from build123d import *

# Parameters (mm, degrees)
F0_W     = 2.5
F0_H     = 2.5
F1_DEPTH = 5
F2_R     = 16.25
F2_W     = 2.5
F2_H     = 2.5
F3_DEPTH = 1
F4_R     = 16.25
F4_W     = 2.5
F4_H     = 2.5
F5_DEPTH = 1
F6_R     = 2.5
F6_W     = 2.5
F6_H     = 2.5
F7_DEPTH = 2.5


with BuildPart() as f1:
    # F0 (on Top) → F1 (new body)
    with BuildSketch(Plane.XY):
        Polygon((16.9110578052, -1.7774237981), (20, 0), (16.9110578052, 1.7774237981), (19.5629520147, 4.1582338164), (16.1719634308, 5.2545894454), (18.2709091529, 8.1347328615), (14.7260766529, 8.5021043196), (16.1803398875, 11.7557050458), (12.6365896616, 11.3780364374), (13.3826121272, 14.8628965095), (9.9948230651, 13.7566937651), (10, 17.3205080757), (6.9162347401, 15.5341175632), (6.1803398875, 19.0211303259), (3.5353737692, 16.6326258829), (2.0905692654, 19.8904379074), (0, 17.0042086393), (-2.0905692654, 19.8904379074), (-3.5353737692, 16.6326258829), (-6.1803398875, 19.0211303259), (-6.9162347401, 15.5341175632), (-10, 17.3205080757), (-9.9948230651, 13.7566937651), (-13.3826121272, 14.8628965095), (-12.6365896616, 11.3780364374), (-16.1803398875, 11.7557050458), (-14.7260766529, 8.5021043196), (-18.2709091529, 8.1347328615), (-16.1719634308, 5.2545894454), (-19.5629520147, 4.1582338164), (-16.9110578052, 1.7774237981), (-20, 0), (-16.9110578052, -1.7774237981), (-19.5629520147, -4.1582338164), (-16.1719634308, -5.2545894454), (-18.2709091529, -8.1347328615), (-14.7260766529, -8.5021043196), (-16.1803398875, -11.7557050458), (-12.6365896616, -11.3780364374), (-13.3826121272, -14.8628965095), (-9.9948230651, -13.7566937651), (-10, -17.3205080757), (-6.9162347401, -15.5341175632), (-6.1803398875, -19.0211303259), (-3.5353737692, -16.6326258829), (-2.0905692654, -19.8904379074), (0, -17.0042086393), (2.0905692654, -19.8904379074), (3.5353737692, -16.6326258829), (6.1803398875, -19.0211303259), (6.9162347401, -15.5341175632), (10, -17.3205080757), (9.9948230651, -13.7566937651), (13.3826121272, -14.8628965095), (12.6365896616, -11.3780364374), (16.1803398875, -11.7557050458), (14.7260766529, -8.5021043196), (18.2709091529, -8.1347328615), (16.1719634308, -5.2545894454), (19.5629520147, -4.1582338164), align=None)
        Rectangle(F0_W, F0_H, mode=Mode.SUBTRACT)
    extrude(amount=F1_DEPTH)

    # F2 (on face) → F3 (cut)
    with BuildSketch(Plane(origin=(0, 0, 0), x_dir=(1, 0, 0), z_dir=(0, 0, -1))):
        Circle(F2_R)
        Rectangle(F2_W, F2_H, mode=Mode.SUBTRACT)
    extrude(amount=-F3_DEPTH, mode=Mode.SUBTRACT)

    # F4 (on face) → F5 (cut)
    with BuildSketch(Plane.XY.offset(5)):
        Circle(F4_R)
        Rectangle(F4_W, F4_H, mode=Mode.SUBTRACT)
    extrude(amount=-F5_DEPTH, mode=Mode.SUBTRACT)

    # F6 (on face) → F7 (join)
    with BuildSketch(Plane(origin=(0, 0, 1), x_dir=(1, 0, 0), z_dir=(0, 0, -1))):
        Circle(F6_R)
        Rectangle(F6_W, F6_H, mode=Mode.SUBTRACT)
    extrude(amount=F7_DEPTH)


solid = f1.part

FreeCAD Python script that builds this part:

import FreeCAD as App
import Part
import Sketcher

V = App.Vector

doc = App.newDocument("Part")
params = doc.addObject("Spreadsheet::Sheet", "Params")
for row, (alias, value) in enumerate([
    ("sketch1_width", "2.5 mm"),
    ("pad1_length", "5 mm"),
    ("sketch2_diameter", "32.5 mm"),
    ("sketch2_width", "2.5 mm"),
    ("pocket1_length", "1 mm"),
    ("sketch3_diameter", "32.5 mm"),
    ("sketch3_width", "2.5 mm"),
    ("pocket2_length", "1 mm"),
    ("sketch4_diameter", "5 mm"),
    ("sketch4_width", "2.5 mm"),
    ("pad2_length", "2.5 mm"),
], start=1):
    params.set(f"A{row}", alias)
    params.set(f"B{row}", "=" + value)
    params.setAlias(f"B{row}", alias)

body = doc.addObject("PartDesign::Body", "Body")

sketch1 = body.newObject("Sketcher::SketchObject", "Sketch")
sketch1.AttachmentSupport = (doc.getObject("XY_Plane"), [""])
sketch1.MapMode = "FlatFace"
sketch1.addGeometry([
    Part.LineSegment(V(16.911058, -1.777424, 0), V(20, 0, 0)),
    Part.LineSegment(V(20, 0, 0), V(16.911058, 1.777424, 0)),
    Part.LineSegment(V(16.911058, 1.777424, 0), V(19.562952, 4.158234, 0)),
    Part.LineSegment(V(19.562952, 4.158234, 0), V(16.171963, 5.254589, 0)),
    Part.LineSegment(V(16.171963, 5.254589, 0), V(18.270909, 8.134733, 0)),
    Part.LineSegment(V(18.270909, 8.134733, 0), V(14.726077, 8.502104, 0)),
    Part.LineSegment(V(14.726077, 8.502104, 0), V(16.18034, 11.755705, 0)),
    Part.LineSegment(V(16.18034, 11.755705, 0), V(12.63659, 11.378036, 0)),
    Part.LineSegment(V(12.63659, 11.378036, 0), V(13.382612, 14.862897, 0)),
    Part.LineSegment(V(13.382612, 14.862897, 0), V(9.994823, 13.756694, 0)),
    Part.LineSegment(V(9.994823, 13.756694, 0), V(10, 17.320508, 0)),
    Part.LineSegment(V(10, 17.320508, 0), V(6.916235, 15.534118, 0)),
    Part.LineSegment(V(6.916235, 15.534118, 0), V(6.18034, 19.02113, 0)),
    Part.LineSegment(V(6.18034, 19.02113, 0), V(3.535374, 16.632626, 0)),
    Part.LineSegment(V(3.535374, 16.632626, 0), V(2.090569, 19.890438, 0)),
    Part.LineSegment(V(2.090569, 19.890438, 0), V(0, 17.004209, 0)),
    Part.LineSegment(V(0, 17.004209, 0), V(-2.090569, 19.890438, 0)),
    Part.LineSegment(V(-2.090569, 19.890438, 0), V(-3.535374, 16.632626, 0)),
    Part.LineSegment(V(-3.535374, 16.632626, 0), V(-6.18034, 19.02113, 0)),
    Part.LineSegment(V(-6.18034, 19.02113, 0), V(-6.916235, 15.534118, 0)),
    Part.LineSegment(V(-6.916235, 15.534118, 0), V(-10, 17.320508, 0)),
    Part.LineSegment(V(-10, 17.320508, 0), V(-9.994823, 13.756694, 0)),
    Part.LineSegment(V(-9.994823, 13.756694, 0), V(-13.382612, 14.862897, 0)),
    Part.LineSegment(V(-13.382612, 14.862897, 0), V(-12.63659, 11.378036, 0)),
    Part.LineSegment(V(-12.63659, 11.378036, 0), V(-16.18034, 11.755705, 0)),
    Part.LineSegment(V(-16.18034, 11.755705, 0), V(-14.726077, 8.502104, 0)),
    Part.LineSegment(V(-14.726077, 8.502104, 0), V(-18.270909, 8.134733, 0)),
    Part.LineSegment(V(-18.270909, 8.134733, 0), V(-16.171963, 5.254589, 0)),
    Part.LineSegment(V(-16.171963, 5.254589, 0), V(-19.562952, 4.158234, 0)),
    Part.LineSegment(V(-19.562952, 4.158234, 0), V(-16.911058, 1.777424, 0)),
    Part.LineSegment(V(-16.911058, 1.777424, 0), V(-20, 0, 0)),
    Part.LineSegment(V(-20, 0, 0), V(-16.911058, -1.777424, 0)),
    Part.LineSegment(V(-16.911058, -1.777424, 0), V(-19.562952, -4.158234, 0)),
    Part.LineSegment(V(-19.562952, -4.158234, 0), V(-16.171963, -5.254589, 0)),
    Part.LineSegment(V(-16.171963, -5.254589, 0), V(-18.270909, -8.134733, 0)),
    Part.LineSegment(V(-18.270909, -8.134733, 0), V(-14.726077, -8.502104, 0)),
    Part.LineSegment(V(-14.726077, -8.502104, 0), V(-16.18034, -11.755705, 0)),
    Part.LineSegment(V(-16.18034, -11.755705, 0), V(-12.63659, -11.378036, 0)),
    Part.LineSegment(V(-12.63659, -11.378036, 0), V(-13.382612, -14.862897, 0)),
    Part.LineSegment(V(-13.382612, -14.862897, 0), V(-9.994823, -13.756694, 0)),
    Part.LineSegment(V(-9.994823, -13.756694, 0), V(-10, -17.320508, 0)),
    Part.LineSegment(V(-10, -17.320508, 0), V(-6.916235, -15.534118, 0)),
    Part.LineSegment(V(-6.916235, -15.534118, 0), V(-6.18034, -19.02113, 0)),
    Part.LineSegment(V(-6.18034, -19.02113, 0), V(-3.535374, -16.632626, 0)),
    Part.LineSegment(V(-3.535374, -16.632626, 0), V(-2.090569, -19.890438, 0)),
    Part.LineSegment(V(-2.090569, -19.890438, 0), V(0, -17.004209, 0)),
    Part.LineSegment(V(0, -17.004209, 0), V(2.090569, -19.890438, 0)),
    Part.LineSegment(V(2.090569, -19.890438, 0), V(3.535374, -16.632626, 0)),
    Part.LineSegment(V(3.535374, -16.632626, 0), V(6.18034, -19.02113, 0)),
    Part.LineSegment(V(6.18034, -19.02113, 0), V(6.916235, -15.534118, 0)),
    Part.LineSegment(V(6.916235, -15.534118, 0), V(10, -17.320508, 0)),
    Part.LineSegment(V(10, -17.320508, 0), V(9.994823, -13.756694, 0)),
    Part.LineSegment(V(9.994823, -13.756694, 0), V(13.382612, -14.862897, 0)),
    Part.LineSegment(V(13.382612, -14.862897, 0), V(12.63659, -11.378036, 0)),
    Part.LineSegment(V(12.63659, -11.378036, 0), V(16.18034, -11.755705, 0)),
    Part.LineSegment(V(16.18034, -11.755705, 0), V(14.726077, -8.502104, 0)),
    Part.LineSegment(V(14.726077, -8.502104, 0), V(18.270909, -8.134733, 0)),
    Part.LineSegment(V(18.270909, -8.134733, 0), V(16.171963, -5.254589, 0)),
    Part.LineSegment(V(16.171963, -5.254589, 0), V(19.562952, -4.158234, 0)),
    Part.LineSegment(V(19.562952, -4.158234, 0), V(16.911058, -1.777424, 0)),
    Part.LineSegment(V(1.25, -1.25, 0), V(-1.25, -1.25, 0)),
    Part.LineSegment(V(-1.25, -1.25, 0), V(-1.25, 1.25, 0)),
    Part.LineSegment(V(-1.25, 1.25, 0), V(1.25, 1.25, 0)),
    Part.LineSegment(V(1.25, 1.25, 0), V(1.25, -1.25, 0)),
], False)
sketch1.addConstraint([
    Sketcher.Constraint("Coincident", 0, 2, 1, 1),
    Sketcher.Constraint("Coincident", 1, 2, 2, 1),
    Sketcher.Constraint("Coincident", 2, 2, 3, 1),
    Sketcher.Constraint("Coincident", 3, 2, 4, 1),
    Sketcher.Constraint("Coincident", 4, 2, 5, 1),
    Sketcher.Constraint("Coincident", 5, 2, 6, 1),
    Sketcher.Constraint("Coincident", 6, 2, 7, 1),
    Sketcher.Constraint("Coincident", 7, 2, 8, 1),
    Sketcher.Constraint("Coincident", 8, 2, 9, 1),
    Sketcher.Constraint("Coincident", 9, 2, 10, 1),
    Sketcher.Constraint("Coincident", 10, 2, 11, 1),
    Sketcher.Constraint("Coincident", 11, 2, 12, 1),
    Sketcher.Constraint("Coincident", 12, 2, 13, 1),
    Sketcher.Constraint("Coincident", 13, 2, 14, 1),
    Sketcher.Constraint("Coincident", 14, 2, 15, 1),
    Sketcher.Constraint("Coincident", 15, 2, 16, 1),
    Sketcher.Constraint("Coincident", 16, 2, 17, 1),
    Sketcher.Constraint("Coincident", 17, 2, 18, 1),
    Sketcher.Constraint("Coincident", 18, 2, 19, 1),
    Sketcher.Constraint("Coincident", 19, 2, 20, 1),
    Sketcher.Constraint("Coincident", 20, 2, 21, 1),
    Sketcher.Constraint("Coincident", 21, 2, 22, 1),
    Sketcher.Constraint("Coincident", 22, 2, 23, 1),
    Sketcher.Constraint("Coincident", 23, 2, 24, 1),
    Sketcher.Constraint("Coincident", 24, 2, 25, 1),
    Sketcher.Constraint("Coincident", 25, 2, 26, 1),
    Sketcher.Constraint("Coincident", 26, 2, 27, 1),
    Sketcher.Constraint("Coincident", 27, 2, 28, 1),
    Sketcher.Constraint("Coincident", 28, 2, 29, 1),
    Sketcher.Constraint("Coincident", 29, 2, 30, 1),
    Sketcher.Constraint("Coincident", 30, 2, 31, 1),
    Sketcher.Constraint("Coincident", 31, 2, 32, 1),
    Sketcher.Constraint("Coincident", 32, 2, 33, 1),
    Sketcher.Constraint("Coincident", 33, 2, 34, 1),
    Sketcher.Constraint("Coincident", 34, 2, 35, 1),
    Sketcher.Constraint("Coincident", 35, 2, 36, 1),
    Sketcher.Constraint("Coincident", 36, 2, 37, 1),
    Sketcher.Constraint("Coincident", 37, 2, 38, 1),
    Sketcher.Constraint("Coincident", 38, 2, 39, 1),
    Sketcher.Constraint("Coincident", 39, 2, 40, 1),
    Sketcher.Constraint("Coincident", 40, 2, 41, 1),
    Sketcher.Constraint("Coincident", 41, 2, 42, 1),
    Sketcher.Constraint("Coincident", 42, 2, 43, 1),
    Sketcher.Constraint("Coincident", 43, 2, 44, 1),
    Sketcher.Constraint("Coincident", 44, 2, 45, 1),
    Sketcher.Constraint("Coincident", 45, 2, 46, 1),
    Sketcher.Constraint("Coincident", 46, 2, 47, 1),
    Sketcher.Constraint("Coincident", 47, 2, 48, 1),
    Sketcher.Constraint("Coincident", 48, 2, 49, 1),
    Sketcher.Constraint("Coincident", 49, 2, 50, 1),
    Sketcher.Constraint("Coincident", 50, 2, 51, 1),
    Sketcher.Constraint("Coincident", 51, 2, 52, 1),
    Sketcher.Constraint("Coincident", 52, 2, 53, 1),
    Sketcher.Constraint("Coincident", 53, 2, 54, 1),
    Sketcher.Constraint("Coincident", 54, 2, 55, 1),
    Sketcher.Constraint("Coincident", 55, 2, 56, 1),
    Sketcher.Constraint("Coincident", 56, 2, 57, 1),
    Sketcher.Constraint("Coincident", 57, 2, 58, 1),
    Sketcher.Constraint("Coincident", 58, 2, 59, 1),
    Sketcher.Constraint("Coincident", 59, 2, 0, 1),
    Sketcher.Constraint("Coincident", 60, 2, 61, 1),
    Sketcher.Constraint("Coincident", 61, 2, 62, 1),
    Sketcher.Constraint("Coincident", 62, 2, 63, 1),
    Sketcher.Constraint("Coincident", 63, 2, 60, 1),
    Sketcher.Constraint("Horizontal", 60),
    Sketcher.Constraint("Vertical", 61),
    Sketcher.Constraint("Horizontal", 62),
    Sketcher.Constraint("Vertical", 63),
    Sketcher.Constraint("Symmetric", 0, 2, 30, 2, -1, 1),
    Sketcher.Constraint("Symmetric", 1, 2, 31, 2, -1, 1),
    Sketcher.Constraint("Symmetric", 2, 2, 32, 2, -1, 1),
    Sketcher.Constraint("Symmetric", 3, 2, 33, 2, -1, 1),
    Sketcher.Constraint("Symmetric", 4, 2, 34, 2, -1, 1),
    Sketcher.Constraint("Symmetric", 5, 2, 35, 2, -1, 1),
    Sketcher.Constraint("Symmetric", 6, 2, 36, 2, -1, 1),
    Sketcher.Constraint("Symmetric", 7, 2, 37, 2, -1, 1),
    Sketcher.Constraint("Symmetric", 8, 2, 38, 2, -1, 1),
    Sketcher.Constraint("Symmetric", 9, 2, 39, 2, -1, 1),
    Sketcher.Constraint("Symmetric", 10, 2, 40, 2, -1, 1),
    Sketcher.Constraint("Symmetric", 11, 2, 41, 2, -1, 1),
    Sketcher.Constraint("Symmetric", 12, 2, 42, 2, -1, 1),
    Sketcher.Constraint("Symmetric", 13, 2, 43, 2, -1, 1),
    Sketcher.Constraint("Symmetric", 14, 2, 44, 2, -1, 1),
    Sketcher.Constraint("Symmetric", 15, 2, 45, 2, -1, 1),
    Sketcher.Constraint("Symmetric", 16, 2, 46, 2, -1, 1),
    Sketcher.Constraint("Symmetric", 17, 2, 47, 2, -1, 1),
    Sketcher.Constraint("Symmetric", 18, 2, 48, 2, -1, 1),
    Sketcher.Constraint("Symmetric", 19, 2, 49, 2, -1, 1),
    Sketcher.Constraint("Symmetric", 20, 2, 50, 2, -1, 1),
    Sketcher.Constraint("Symmetric", 21, 2, 51, 2, -1, 1),
    Sketcher.Constraint("Symmetric", 22, 2, 52, 2, -1, 1),
    Sketcher.Constraint("Symmetric", 23, 2, 53, 2, -1, 1),
    Sketcher.Constraint("Symmetric", 24, 2, 54, 2, -1, 1),
    Sketcher.Constraint("Symmetric", 25, 2, 55, 2, -1, 1),
    Sketcher.Constraint("Symmetric", 26, 2, 56, 2, -1, 1),
    Sketcher.Constraint("Symmetric", 27, 2, 57, 2, -1, 1),
    Sketcher.Constraint("Symmetric", 28, 2, 58, 2, -1, 1),
    Sketcher.Constraint("Symmetric", 29, 2, 59, 2, -1, 1),
    Sketcher.Constraint("Symmetric", 60, 2, 62, 2, -1, 1),
    Sketcher.Constraint("Symmetric", 14, 2, 16, 2, -2),
    Sketcher.Constraint("Symmetric", 13, 2, 17, 2, -2),
    Sketcher.Constraint("Symmetric", 12, 2, 18, 2, -2),
    Sketcher.Constraint("Symmetric", 11, 2, 19, 2, -2),
    Sketcher.Constraint("Symmetric", 10, 2, 20, 2, -2),
    Sketcher.Constraint("Symmetric", 9, 2, 21, 2, -2),
    Sketcher.Constraint("Symmetric", 8, 2, 22, 2, -2),
    Sketcher.Constraint("Symmetric", 7, 2, 23, 2, -2),
    Sketcher.Constraint("Symmetric", 6, 2, 24, 2, -2),
    Sketcher.Constraint("Symmetric", 5, 2, 25, 2, -2),
    Sketcher.Constraint("Symmetric", 4, 2, 26, 2, -2),
    Sketcher.Constraint("Symmetric", 3, 2, 27, 2, -2),
    Sketcher.Constraint("Symmetric", 2, 2, 28, 2, -2),
    Sketcher.Constraint("Symmetric", 1, 2, 29, 2, -2),
    Sketcher.Constraint("PointOnObject", 0, 2, -1),
    Sketcher.Constraint("PointOnObject", 15, 2, -2),
    Sketcher.Constraint("Equal", 62, 61),
    Sketcher.Constraint("Equal", 1, 2),
    Sketcher.Constraint("Equal", 2, 3),
    Sketcher.Constraint("Equal", 3, 4),
    Sketcher.Constraint("Equal", 4, 5),
    Sketcher.Constraint("Equal", 5, 6),
    Sketcher.Constraint("Equal", 6, 7),
    Sketcher.Constraint("Equal", 7, 8),
    Sketcher.Constraint("Equal", 8, 9),
    Sketcher.Constraint("Equal", 9, 10),
    Sketcher.Constraint("Equal", 10, 11),
    Sketcher.Constraint("Equal", 11, 12),
    Sketcher.Constraint("Equal", 12, 13),
    Sketcher.Constraint("Equal", 13, 14),
    Sketcher.Constraint("Equal", 14, 15),
    Sketcher.Constraint("DistanceX", 60, 2, 60, 1, 2.5),
    Sketcher.Constraint("DistanceX", -1, 1, 0, 2, 20.0),
    Sketcher.Constraint("DistanceX", -1, 1, 10, 2, 10.0),
    Sketcher.Constraint("Distance", 0, 3.563818),
    Sketcher.Constraint("DistanceY", -1, 1, 3, 2, 5.254589),
    Sketcher.Constraint("DistanceX", -1, 1, 4, 2, 18.270909),
    Sketcher.Constraint("DistanceX", -1, 1, 6, 2, 16.18034),
    Sketcher.Constraint("DistanceX", -1, 1, 7, 2, 12.63659),
    Sketcher.Constraint("DistanceY", -1, 1, 10, 2, 17.320508),
    Sketcher.Constraint("DistanceX", -1, 1, 12, 2, 6.18034),
    Sketcher.Constraint("DistanceY", -1, 1, 12, 2, 19.02113),
    Sketcher.Constraint("DistanceX", -1, 1, 14, 2, 2.090569),
    Sketcher.Constraint("DistanceY", -1, 1, 15, 2, 17.004209),
    Sketcher.Constraint("DistanceX", -1, 1, 1, 2, 16.911058),
    Sketcher.Constraint("DistanceX", -1, 1, 2, 2, 19.562952),
    Sketcher.Constraint("DistanceX", -1, 1, 5, 2, 14.726077),
    Sketcher.Constraint("DistanceX", -1, 1, 8, 2, 13.382612),
])
sketch1.setExpression("Constraints[130]", "Params.sketch1_width")
pad1 = body.newObject("PartDesign::Pad", "Pad")
pad1.Profile = sketch1
pad1.setExpression("Length", "Params.pad1_length")

sketch2 = body.newObject("Sketcher::SketchObject", "Sketch001")
sketch2.AttachmentSupport = (doc.getObject("XY_Plane"), [""])
sketch2.MapMode = "FlatFace"
sketch2.addGeometry([
    Part.Circle(V(0, 0, 0), V(0, 0, 1), 16.25),
    Part.LineSegment(V(1.25, 1.25, 0), V(-1.25, 1.25, 0)),
    Part.LineSegment(V(-1.25, 1.25, 0), V(-1.25, -1.25, 0)),
    Part.LineSegment(V(-1.25, -1.25, 0), V(1.25, -1.25, 0)),
    Part.LineSegment(V(1.25, -1.25, 0), V(1.25, 1.25, 0)),
], False)
sketch2.addConstraint([
    Sketcher.Constraint("Coincident", 1, 2, 2, 1),
    Sketcher.Constraint("Coincident", 2, 2, 3, 1),
    Sketcher.Constraint("Coincident", 3, 2, 4, 1),
    Sketcher.Constraint("Coincident", 4, 2, 1, 1),
    Sketcher.Constraint("Horizontal", 1),
    Sketcher.Constraint("Vertical", 2),
    Sketcher.Constraint("Horizontal", 3),
    Sketcher.Constraint("Vertical", 4),
    Sketcher.Constraint("Coincident", 0, 3, -1, 1),
    Sketcher.Constraint("Symmetric", 1, 2, 3, 2, -1, 1),
    Sketcher.Constraint("Equal", 3, 2),
    Sketcher.Constraint("Diameter", 0, 32.5),
    Sketcher.Constraint("DistanceX", 1, 2, 1, 1, 2.5),
])
sketch2.setExpression("Constraints[11]", "Params.sketch2_diameter")
sketch2.setExpression("Constraints[12]", "Params.sketch2_width")
pocket1 = body.newObject("PartDesign::Pocket", "Pocket")
pocket1.Profile = sketch2
pocket1.setExpression("Length", "Params.pocket1_length")
pocket1.Reversed = True

sketch3 = body.newObject("Sketcher::SketchObject", "Sketch002")
sketch3.AttachmentSupport = (doc.getObject("XY_Plane"), [""])
sketch3.MapMode = "FlatFace"
sketch3.AttachmentOffset = App.Placement(V(0, 0, 5), App.Rotation())
sketch3.addGeometry([
    Part.Circle(V(0, 0, 0), V(0, 0, 1), 16.25),
    Part.LineSegment(V(1.25, -1.25, 0), V(-1.25, -1.25, 0)),
    Part.LineSegment(V(-1.25, -1.25, 0), V(-1.25, 1.25, 0)),
    Part.LineSegment(V(-1.25, 1.25, 0), V(1.25, 1.25, 0)),
    Part.LineSegment(V(1.25, 1.25, 0), V(1.25, -1.25, 0)),
], False)
sketch3.addConstraint([
    Sketcher.Constraint("Coincident", 1, 2, 2, 1),
    Sketcher.Constraint("Coincident", 2, 2, 3, 1),
    Sketcher.Constraint("Coincident", 3, 2, 4, 1),
    Sketcher.Constraint("Coincident", 4, 2, 1, 1),
    Sketcher.Constraint("Horizontal", 1),
    Sketcher.Constraint("Vertical", 2),
    Sketcher.Constraint("Horizontal", 3),
    Sketcher.Constraint("Vertical", 4),
    Sketcher.Constraint("Coincident", 0, 3, -1, 1),
    Sketcher.Constraint("Symmetric", 1, 2, 3, 2, -1, 1),
    Sketcher.Constraint("Equal", 3, 2),
    Sketcher.Constraint("Diameter", 0, 32.5),
    Sketcher.Constraint("DistanceX", 1, 2, 1, 1, 2.5),
])
sketch3.setExpression("Constraints[11]", "Params.sketch3_diameter")
sketch3.setExpression("Constraints[12]", "Params.sketch3_width")
pocket2 = body.newObject("PartDesign::Pocket", "Pocket001")
pocket2.Profile = sketch3
pocket2.setExpression("Length", "Params.pocket2_length")

sketch4 = body.newObject("Sketcher::SketchObject", "Sketch003")
sketch4.AttachmentSupport = (doc.getObject("XY_Plane"), [""])
sketch4.MapMode = "FlatFace"
sketch4.AttachmentOffset = App.Placement(V(0, 0, 1), App.Rotation())
sketch4.addGeometry([
    Part.Circle(V(0, 0, 0), V(0, 0, 1), 2.5),
    Part.LineSegment(V(1.25, 1.25, 0), V(-1.25, 1.25, 0)),
    Part.LineSegment(V(-1.25, 1.25, 0), V(-1.25, -1.25, 0)),
    Part.LineSegment(V(-1.25, -1.25, 0), V(1.25, -1.25, 0)),
    Part.LineSegment(V(1.25, -1.25, 0), V(1.25, 1.25, 0)),
], False)
sketch4.addConstraint([
    Sketcher.Constraint("Coincident", 1, 2, 2, 1),
    Sketcher.Constraint("Coincident", 2, 2, 3, 1),
    Sketcher.Constraint("Coincident", 3, 2, 4, 1),
    Sketcher.Constraint("Coincident", 4, 2, 1, 1),
    Sketcher.Constraint("Horizontal", 1),
    Sketcher.Constraint("Vertical", 2),
    Sketcher.Constraint("Horizontal", 3),
    Sketcher.Constraint("Vertical", 4),
    Sketcher.Constraint("Coincident", 0, 3, -1, 1),
    Sketcher.Constraint("Symmetric", 1, 2, 3, 2, -1, 1),
    Sketcher.Constraint("Equal", 3, 2),
    Sketcher.Constraint("Diameter", 0, 5.0),
    Sketcher.Constraint("DistanceX", 1, 2, 1, 1, 2.5),
])
sketch4.setExpression("Constraints[11]", "Params.sketch4_diameter")
sketch4.setExpression("Constraints[12]", "Params.sketch4_width")
pad2 = body.newObject("PartDesign::Pad", "Pad001")
pad2.Profile = sketch4
pad2.setExpression("Length", "Params.pad2_length")
pad2.Reversed = True

doc.recompute()
